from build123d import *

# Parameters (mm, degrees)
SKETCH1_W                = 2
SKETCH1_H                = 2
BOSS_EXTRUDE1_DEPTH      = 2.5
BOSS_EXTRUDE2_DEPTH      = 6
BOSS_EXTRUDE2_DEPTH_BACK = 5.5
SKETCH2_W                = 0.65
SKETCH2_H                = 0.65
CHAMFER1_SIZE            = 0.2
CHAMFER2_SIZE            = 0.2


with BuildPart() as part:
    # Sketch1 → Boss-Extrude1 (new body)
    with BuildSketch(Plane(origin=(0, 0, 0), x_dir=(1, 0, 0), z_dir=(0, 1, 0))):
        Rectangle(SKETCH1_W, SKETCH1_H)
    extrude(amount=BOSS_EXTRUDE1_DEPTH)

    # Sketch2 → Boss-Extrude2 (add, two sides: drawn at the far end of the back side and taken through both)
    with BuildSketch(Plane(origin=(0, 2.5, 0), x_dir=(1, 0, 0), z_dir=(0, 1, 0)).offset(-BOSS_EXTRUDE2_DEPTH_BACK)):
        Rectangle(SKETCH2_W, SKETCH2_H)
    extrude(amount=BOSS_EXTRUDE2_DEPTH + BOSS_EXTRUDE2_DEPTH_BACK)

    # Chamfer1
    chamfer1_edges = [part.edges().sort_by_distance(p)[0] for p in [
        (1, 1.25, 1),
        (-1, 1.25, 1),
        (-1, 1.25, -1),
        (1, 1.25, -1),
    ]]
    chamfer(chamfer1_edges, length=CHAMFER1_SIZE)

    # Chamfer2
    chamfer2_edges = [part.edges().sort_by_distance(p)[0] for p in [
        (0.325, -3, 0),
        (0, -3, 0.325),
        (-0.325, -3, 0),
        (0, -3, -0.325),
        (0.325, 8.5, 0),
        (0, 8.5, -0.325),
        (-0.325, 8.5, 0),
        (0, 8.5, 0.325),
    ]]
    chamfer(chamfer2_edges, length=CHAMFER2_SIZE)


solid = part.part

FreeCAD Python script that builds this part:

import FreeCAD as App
import Part
import Sketcher

V = App.Vector


def edges_at(feature, points):
    """Names of the edges that pass closest to the given points."""
    edges = feature.Shape.Edges
    near = lambda p: min(range(len(edges)), key=lambda i: edges[i].distToShape(Part.Vertex(*p))[0])
    return sorted({f"Edge{near(p) + 1}" for p in points})


def add_polygon(sketch, points):
    """Adds a closed chain of lines whose ends are joined by coincident constraints."""
    first, n = sketch.GeometryCount, len(points)
    for a, b in zip(points, points[1:] + points[:1]):
        sketch.addGeometry(Part.LineSegment(App.Vector(*a, 0), App.Vector(*b, 0)), False)
    for i in range(n):
        sketch.addConstraint(Sketcher.Constraint("Coincident", first + i, 2, first + (i + 1) % n, 1))

doc = App.newDocument("Part")
body = doc.addObject("PartDesign::Body", "Body")

# Sketch on XZ plane
sketch1 = doc.addObject("Sketcher::SketchObject", "Sketch")
body.addObject(sketch1)
sketch1.AttachmentSupport = (doc.XZ_Plane, [""])
sketch1.MapMode = "FlatFace"
add_polygon(sketch1, [(-1, -1), (-1, 1), (1, 1), (1, -1)])  # lines 0-3
sketch1.addConstraint([
    Sketcher.Constraint("Vertical", 0),
    Sketcher.Constraint("Horizontal", 1),
    Sketcher.Constraint("Vertical", 2),
    Sketcher.Constraint("Horizontal", 3),
    Sketcher.Constraint("Symmetric", 0, 2, 2, 2, -1, 1),
    Sketcher.Constraint("Equal", 3, 0),
    Sketcher.Constraint("DistanceX", 1, 1, 1, 2, 2.0),
])
pad1 = doc.addObject("PartDesign::Pad", "Pad")
body.addObject(pad1)
pad1.Profile = sketch1
pad1.Length = 2.5
pad1.Reversed = True

# Sketch on XZ plane
sketch2 = doc.addObject("Sketcher::SketchObject", "Sketch001")
body.addObject(sketch2)
sketch2.AttachmentSupport = (doc.XZ_Plane, [""])
sketch2.MapMode = "FlatFace"
sketch2.AttachmentOffset = App.Placement(V(0, 0, -2.5), App.Rotation())
add_polygon(sketch2, [(-0.325, -0.325), (-0.325, 0.325), (0.325, 0.325), (0.325, -0.325)])  # lines 0-3
sketch2.addConstraint([
    Sketcher.Constraint("Vertical", 0),
    Sketcher.Constraint("Horizontal", 1),
    Sketcher.Constraint("Vertical", 2),
    Sketcher.Constraint("Horizontal", 3),
    Sketcher.Constraint("Symmetric", 0, 2, 2, 2, -1, 1),
    Sketcher.Constraint("Equal", 3, 0),
    Sketcher.Constraint("DistanceX", 1, 1, 1, 2, 0.65),
])
pad2 = doc.addObject("PartDesign::Pad", "Pad001")
body.addObject(pad2)
pad2.Profile = sketch2
pad2.Type = "TwoLengths"
pad2.Length = 6
pad2.Length2 = 5.5
pad2.Reversed = True
doc.recompute()

chamfer = doc.addObject("PartDesign::Chamfer", "Chamfer")
body.addObject(chamfer)
chamfer.Base = (pad2, edges_at(pad2, [
    (1, 1.25, 1),
    (-1, 1.25, 1),
    (-1, 1.25, -1),
    (1, 1.25, -1),
]))
chamfer.Size = 0.2
doc.recompute()

chamfer2 = doc.addObject("PartDesign::Chamfer", "Chamfer001")
body.addObject(chamfer2)
chamfer2.Base = (chamfer, edges_at(chamfer, [
    (0.325, -3, 0),
    (0, -3, 0.325),
    (-0.325, -3, 0),
    (0, -3, -0.325),
    (0.325, 8.5, 0),
    (0, 8.5, -0.325),
    (-0.325, 8.5, 0),
    (0, 8.5, 0.325),
]))
chamfer2.Size = 0.2

doc.recompute()
